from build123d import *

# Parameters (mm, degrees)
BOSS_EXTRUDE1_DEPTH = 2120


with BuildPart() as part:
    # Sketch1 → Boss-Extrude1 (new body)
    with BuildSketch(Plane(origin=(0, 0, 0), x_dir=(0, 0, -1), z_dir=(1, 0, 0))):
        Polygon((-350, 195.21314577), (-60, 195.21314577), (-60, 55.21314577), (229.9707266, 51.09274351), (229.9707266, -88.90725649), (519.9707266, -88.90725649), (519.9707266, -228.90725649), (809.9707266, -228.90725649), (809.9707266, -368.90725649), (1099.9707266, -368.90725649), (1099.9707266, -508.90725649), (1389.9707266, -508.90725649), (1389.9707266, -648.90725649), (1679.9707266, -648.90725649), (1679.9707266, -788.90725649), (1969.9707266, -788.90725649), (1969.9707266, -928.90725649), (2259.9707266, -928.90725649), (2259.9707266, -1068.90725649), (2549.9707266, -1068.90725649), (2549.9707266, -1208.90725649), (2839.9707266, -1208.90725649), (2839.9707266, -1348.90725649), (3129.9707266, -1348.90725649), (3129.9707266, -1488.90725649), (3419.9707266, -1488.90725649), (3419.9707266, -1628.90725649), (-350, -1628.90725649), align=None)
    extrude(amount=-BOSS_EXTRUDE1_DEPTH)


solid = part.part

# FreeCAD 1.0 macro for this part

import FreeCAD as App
import Part
import Sketcher

V = App.Vector
Q = App.Units.Quantity

doc = App.newDocument("Part")
params = doc.addObject("Spreadsheet::Sheet", "Params")
for row, (alias, value) in enumerate([
    ("sketch1_width", "140 mm"),
    ("sketch1_height", "290 mm"),
    ("sketch1_length", "290 mm"),
    ("pad1_length", "2120 mm"),
], start=1):
    params.set(f"A{row}", alias)
    params.set(f"B{row}", "=" + value)
    params.setAlias(f"B{row}", alias)

body = doc.addObject("PartDesign::Body", "Body")

# Sketch on YZ plane
sketch1 = body.newObject("Sketcher::SketchObject", "Sketch")
sketch1.AttachmentSupport = (doc.getObject("YZ_Plane"), [""])
sketch1.MapMode = "FlatFace"
sketch1.addGeometry([
    Part.LineSegment(V(195, 60, 0), V(195, 350, 0)),  # 0
    Part.LineSegment(V(195, 350, 0), V(-1629, 350, 0)),  # 1
    Part.LineSegment(V(-1629, 350, 0), V(-1629, -3420, 0)),  # 2
    Part.LineSegment(V(-1629, -3420, 0), V(-1489, -3420, 0)),  # 3
    Part.LineSegment(V(-1489, -3420, 0), V(-1489, -3130, 0)),  # 4
    Part.LineSegment(V(-1489, -3130, 0), V(-1349, -3130, 0)),  # 5
    Part.LineSegment(V(-1349, -3130, 0), V(-1349, -2840, 0)),  # 6
    Part.LineSegment(V(-1349, -2840, 0), V(-1209, -2840, 0)),  # 7
    Part.LineSegment(V(-1209, -2840, 0), V(-1209, -2550, 0)),  # 8
    Part.LineSegment(V(-1209, -2550, 0), V(-1069, -2550, 0)),  # 9
    Part.LineSegment(V(-1069, -2550, 0), V(-1069, -2260, 0)),  # 10
    Part.LineSegment(V(-1069, -2260, 0), V(-929, -2260, 0)),  # 11
    Part.LineSegment(V(-929, -2260, 0), V(-929, -1970, 0)),  # 12
    Part.LineSegment(V(-929, -1970, 0), V(-789, -1970, 0)),  # 13
    Part.LineSegment(V(-789, -1970, 0), V(-789, -1680, 0)),  # 14
    Part.LineSegment(V(-789, -1680, 0), V(-649, -1680, 0)),  # 15
    Part.LineSegment(V(-649, -1680, 0), V(-649, -1390, 0)),  # 16
    Part.LineSegment(V(-649, -1390, 0), V(-509, -1390, 0)),  # 17
    Part.LineSegment(V(-509, -1390, 0), V(-509, -1100, 0)),  # 18
    Part.LineSegment(V(-509, -1100, 0), V(-369, -1100, 0)),  # 19
    Part.LineSegment(V(-369, -1100, 0), V(-369, -810, 0)),  # 20
    Part.LineSegment(V(-369, -810, 0), V(-229, -810, 0)),  # 21
    Part.LineSegment(V(-229, -810, 0), V(-229, -520, 0)),  # 22
    Part.LineSegment(V(-229, -520, 0), V(-89, -520, 0)),  # 23
    Part.LineSegment(V(-89, -520, 0), V(-89, -230, 0)),  # 24
    Part.LineSegment(V(-89, -230, 0), V(51, -230, 0)),  # 25
    Part.LineSegment(V(51, -230, 0), V(55, 60, 0)),  # 26
    Part.LineSegment(V(55, 60, 0), V(195, 60, 0)),  # 27
], False)
sketch1.addConstraint([
    Sketcher.Constraint("Coincident", 0, 2, 1, 1),
    Sketcher.Constraint("Coincident", 1, 2, 2, 1),
    Sketcher.Constraint("Coincident", 2, 2, 3, 1),
    Sketcher.Constraint("Coincident", 3, 2, 4, 1),
    Sketcher.Constraint("Coincident", 4, 2, 5, 1),
    Sketcher.Constraint("Coincident", 5, 2, 6, 1),
    Sketcher.Constraint("Coincident", 6, 2, 7, 1),
    Sketcher.Constraint("Coincident", 7, 2, 8, 1),
    Sketcher.Constraint("Coincident", 8, 2, 9, 1),
    Sketcher.Constraint("Coincident", 9, 2, 10, 1),
    Sketcher.Constraint("Coincident", 10, 2, 11, 1),
    Sketcher.Constraint("Coincident", 11, 2, 12, 1),
    Sketcher.Constraint("Coincident", 12, 2, 13, 1),
    Sketcher.Constraint("Coincident", 13, 2, 14, 1),
    Sketcher.Constraint("Coincident", 14, 2, 15, 1),
    Sketcher.Constraint("Coincident", 15, 2, 16, 1),
    Sketcher.Constraint("Coincident", 16, 2, 17, 1),
    Sketcher.Constraint("Coincident", 17, 2, 18, 1),
    Sketcher.Constraint("Coincident", 18, 2, 19, 1),
    Sketcher.Constraint("Coincident", 19, 2, 20, 1),
    Sketcher.Constraint("Coincident", 20, 2, 21, 1),
    Sketcher.Constraint("Coincident", 21, 2, 22, 1),
    Sketcher.Constraint("Coincident", 22, 2, 23, 1),
    Sketcher.Constraint("Coincident", 23, 2, 24, 1),
    Sketcher.Constraint("Coincident", 24, 2, 25, 1),
    Sketcher.Constraint("Coincident", 25, 2, 26, 1),
    Sketcher.Constraint("Coincident", 26, 2, 27, 1),
    Sketcher.Constraint("Coincident", 27, 2, 0, 1),
    Sketcher.Constraint("Vertical", 0),
    Sketcher.Constraint("Horizontal", 1),
    Sketcher.Constraint("Vertical", 2),
    Sketcher.Constraint("Horizontal", 3),
    Sketcher.Constraint("Vertical", 4),
    Sketcher.Constraint("Horizontal", 5),
    Sketcher.Constraint("Vertical", 6),
    Sketcher.Constraint("Horizontal", 7),
    Sketcher.Constraint("Vertical", 8),
    Sketcher.Constraint("Horizontal", 9),
    Sketcher.Constraint("Vertical", 10),
    Sketcher.Constraint("Horizontal", 11),
    Sketcher.Constraint("Vertical", 12),
    Sketcher.Constraint("Horizontal", 13),
    Sketcher.Constraint("Vertical", 14),
    Sketcher.Constraint("Horizontal", 15),
    Sketcher.Constraint("Vertical", 16),
    Sketcher.Constraint("Horizontal", 17),
    Sketcher.Constraint("Vertical", 18),
    Sketcher.Constraint("Horizontal", 19),
    Sketcher.Constraint("Vertical", 20),
    Sketcher.Constraint("Horizontal", 21),
    Sketcher.Constraint("Vertical", 22),
    Sketcher.Constraint("Horizontal", 23),
    Sketcher.Constraint("Vertical", 24),
    Sketcher.Constraint("Horizontal", 25),
    Sketcher.Constraint("Horizontal", 27),
    Sketcher.Constraint("Equal", 3, 5),
    Sketcher.Constraint("Equal", 5, 7),
    Sketcher.Constraint("Equal", 7, 9),
    Sketcher.Constraint("Equal", 9, 11),
    Sketcher.Constraint("Equal", 11, 13),
    Sketcher.Constraint("Equal", 13, 15),
    Sketcher.Constraint("Equal", 15, 17),
    Sketcher.Constraint("Equal", 17, 19),
    Sketcher.Constraint("Equal", 19, 21),
    Sketcher.Constraint("Equal", 21, 23),
    Sketcher.Constraint("Equal", 23, 25),
    Sketcher.Constraint("Equal", 25, 27),
    Sketcher.Constraint("Equal", 0, 4),
    Sketcher.Constraint("Equal", 4, 6),
    Sketcher.Constraint("Equal", 6, 8),
    Sketcher.Constraint("Equal", 8, 10),
    Sketcher.Constraint("Equal", 10, 12),
    Sketcher.Constraint("Equal", 12, 14),
    Sketcher.Constraint("Equal", 14, 16),
    Sketcher.Constraint("Equal", 16, 18),
    Sketcher.Constraint("Equal", 18, 20),
    Sketcher.Constraint("Equal", 20, 22),
    Sketcher.Constraint("Equal", 22, 24),
    Sketcher.Constraint("DistanceX", 3, 1, 3, 2, Q("140 mm")),
    Sketcher.Constraint("DistanceY", 0, 1, 0, 2, Q("290 mm")),
    Sketcher.Constraint("Distance", 26, Q("290 mm")),
    Sketcher.Constraint("DistanceY", -1, 1, 0, 2, Q("350 mm")),
    Sketcher.Constraint("DistanceX", 1, 2, 1, 1, Q("1824.120402 mm")),
    Sketcher.Constraint("DistanceX", -1, 1, 0, 2, Q("195.213146 mm")),
])
sketch1.setExpression("Constraints[78]", "Params.sketch1_width")
sketch1.setExpression("Constraints[79]", "Params.sketch1_height")
sketch1.setExpression("Constraints[80]", "Params.sketch1_length")
pad1 = body.newObject("PartDesign::Pad", "Pad")
pad1.Profile = sketch1
pad1.setExpression("Length", "Params.pad1_length")
pad1.Reversed = True

doc.recompute()
